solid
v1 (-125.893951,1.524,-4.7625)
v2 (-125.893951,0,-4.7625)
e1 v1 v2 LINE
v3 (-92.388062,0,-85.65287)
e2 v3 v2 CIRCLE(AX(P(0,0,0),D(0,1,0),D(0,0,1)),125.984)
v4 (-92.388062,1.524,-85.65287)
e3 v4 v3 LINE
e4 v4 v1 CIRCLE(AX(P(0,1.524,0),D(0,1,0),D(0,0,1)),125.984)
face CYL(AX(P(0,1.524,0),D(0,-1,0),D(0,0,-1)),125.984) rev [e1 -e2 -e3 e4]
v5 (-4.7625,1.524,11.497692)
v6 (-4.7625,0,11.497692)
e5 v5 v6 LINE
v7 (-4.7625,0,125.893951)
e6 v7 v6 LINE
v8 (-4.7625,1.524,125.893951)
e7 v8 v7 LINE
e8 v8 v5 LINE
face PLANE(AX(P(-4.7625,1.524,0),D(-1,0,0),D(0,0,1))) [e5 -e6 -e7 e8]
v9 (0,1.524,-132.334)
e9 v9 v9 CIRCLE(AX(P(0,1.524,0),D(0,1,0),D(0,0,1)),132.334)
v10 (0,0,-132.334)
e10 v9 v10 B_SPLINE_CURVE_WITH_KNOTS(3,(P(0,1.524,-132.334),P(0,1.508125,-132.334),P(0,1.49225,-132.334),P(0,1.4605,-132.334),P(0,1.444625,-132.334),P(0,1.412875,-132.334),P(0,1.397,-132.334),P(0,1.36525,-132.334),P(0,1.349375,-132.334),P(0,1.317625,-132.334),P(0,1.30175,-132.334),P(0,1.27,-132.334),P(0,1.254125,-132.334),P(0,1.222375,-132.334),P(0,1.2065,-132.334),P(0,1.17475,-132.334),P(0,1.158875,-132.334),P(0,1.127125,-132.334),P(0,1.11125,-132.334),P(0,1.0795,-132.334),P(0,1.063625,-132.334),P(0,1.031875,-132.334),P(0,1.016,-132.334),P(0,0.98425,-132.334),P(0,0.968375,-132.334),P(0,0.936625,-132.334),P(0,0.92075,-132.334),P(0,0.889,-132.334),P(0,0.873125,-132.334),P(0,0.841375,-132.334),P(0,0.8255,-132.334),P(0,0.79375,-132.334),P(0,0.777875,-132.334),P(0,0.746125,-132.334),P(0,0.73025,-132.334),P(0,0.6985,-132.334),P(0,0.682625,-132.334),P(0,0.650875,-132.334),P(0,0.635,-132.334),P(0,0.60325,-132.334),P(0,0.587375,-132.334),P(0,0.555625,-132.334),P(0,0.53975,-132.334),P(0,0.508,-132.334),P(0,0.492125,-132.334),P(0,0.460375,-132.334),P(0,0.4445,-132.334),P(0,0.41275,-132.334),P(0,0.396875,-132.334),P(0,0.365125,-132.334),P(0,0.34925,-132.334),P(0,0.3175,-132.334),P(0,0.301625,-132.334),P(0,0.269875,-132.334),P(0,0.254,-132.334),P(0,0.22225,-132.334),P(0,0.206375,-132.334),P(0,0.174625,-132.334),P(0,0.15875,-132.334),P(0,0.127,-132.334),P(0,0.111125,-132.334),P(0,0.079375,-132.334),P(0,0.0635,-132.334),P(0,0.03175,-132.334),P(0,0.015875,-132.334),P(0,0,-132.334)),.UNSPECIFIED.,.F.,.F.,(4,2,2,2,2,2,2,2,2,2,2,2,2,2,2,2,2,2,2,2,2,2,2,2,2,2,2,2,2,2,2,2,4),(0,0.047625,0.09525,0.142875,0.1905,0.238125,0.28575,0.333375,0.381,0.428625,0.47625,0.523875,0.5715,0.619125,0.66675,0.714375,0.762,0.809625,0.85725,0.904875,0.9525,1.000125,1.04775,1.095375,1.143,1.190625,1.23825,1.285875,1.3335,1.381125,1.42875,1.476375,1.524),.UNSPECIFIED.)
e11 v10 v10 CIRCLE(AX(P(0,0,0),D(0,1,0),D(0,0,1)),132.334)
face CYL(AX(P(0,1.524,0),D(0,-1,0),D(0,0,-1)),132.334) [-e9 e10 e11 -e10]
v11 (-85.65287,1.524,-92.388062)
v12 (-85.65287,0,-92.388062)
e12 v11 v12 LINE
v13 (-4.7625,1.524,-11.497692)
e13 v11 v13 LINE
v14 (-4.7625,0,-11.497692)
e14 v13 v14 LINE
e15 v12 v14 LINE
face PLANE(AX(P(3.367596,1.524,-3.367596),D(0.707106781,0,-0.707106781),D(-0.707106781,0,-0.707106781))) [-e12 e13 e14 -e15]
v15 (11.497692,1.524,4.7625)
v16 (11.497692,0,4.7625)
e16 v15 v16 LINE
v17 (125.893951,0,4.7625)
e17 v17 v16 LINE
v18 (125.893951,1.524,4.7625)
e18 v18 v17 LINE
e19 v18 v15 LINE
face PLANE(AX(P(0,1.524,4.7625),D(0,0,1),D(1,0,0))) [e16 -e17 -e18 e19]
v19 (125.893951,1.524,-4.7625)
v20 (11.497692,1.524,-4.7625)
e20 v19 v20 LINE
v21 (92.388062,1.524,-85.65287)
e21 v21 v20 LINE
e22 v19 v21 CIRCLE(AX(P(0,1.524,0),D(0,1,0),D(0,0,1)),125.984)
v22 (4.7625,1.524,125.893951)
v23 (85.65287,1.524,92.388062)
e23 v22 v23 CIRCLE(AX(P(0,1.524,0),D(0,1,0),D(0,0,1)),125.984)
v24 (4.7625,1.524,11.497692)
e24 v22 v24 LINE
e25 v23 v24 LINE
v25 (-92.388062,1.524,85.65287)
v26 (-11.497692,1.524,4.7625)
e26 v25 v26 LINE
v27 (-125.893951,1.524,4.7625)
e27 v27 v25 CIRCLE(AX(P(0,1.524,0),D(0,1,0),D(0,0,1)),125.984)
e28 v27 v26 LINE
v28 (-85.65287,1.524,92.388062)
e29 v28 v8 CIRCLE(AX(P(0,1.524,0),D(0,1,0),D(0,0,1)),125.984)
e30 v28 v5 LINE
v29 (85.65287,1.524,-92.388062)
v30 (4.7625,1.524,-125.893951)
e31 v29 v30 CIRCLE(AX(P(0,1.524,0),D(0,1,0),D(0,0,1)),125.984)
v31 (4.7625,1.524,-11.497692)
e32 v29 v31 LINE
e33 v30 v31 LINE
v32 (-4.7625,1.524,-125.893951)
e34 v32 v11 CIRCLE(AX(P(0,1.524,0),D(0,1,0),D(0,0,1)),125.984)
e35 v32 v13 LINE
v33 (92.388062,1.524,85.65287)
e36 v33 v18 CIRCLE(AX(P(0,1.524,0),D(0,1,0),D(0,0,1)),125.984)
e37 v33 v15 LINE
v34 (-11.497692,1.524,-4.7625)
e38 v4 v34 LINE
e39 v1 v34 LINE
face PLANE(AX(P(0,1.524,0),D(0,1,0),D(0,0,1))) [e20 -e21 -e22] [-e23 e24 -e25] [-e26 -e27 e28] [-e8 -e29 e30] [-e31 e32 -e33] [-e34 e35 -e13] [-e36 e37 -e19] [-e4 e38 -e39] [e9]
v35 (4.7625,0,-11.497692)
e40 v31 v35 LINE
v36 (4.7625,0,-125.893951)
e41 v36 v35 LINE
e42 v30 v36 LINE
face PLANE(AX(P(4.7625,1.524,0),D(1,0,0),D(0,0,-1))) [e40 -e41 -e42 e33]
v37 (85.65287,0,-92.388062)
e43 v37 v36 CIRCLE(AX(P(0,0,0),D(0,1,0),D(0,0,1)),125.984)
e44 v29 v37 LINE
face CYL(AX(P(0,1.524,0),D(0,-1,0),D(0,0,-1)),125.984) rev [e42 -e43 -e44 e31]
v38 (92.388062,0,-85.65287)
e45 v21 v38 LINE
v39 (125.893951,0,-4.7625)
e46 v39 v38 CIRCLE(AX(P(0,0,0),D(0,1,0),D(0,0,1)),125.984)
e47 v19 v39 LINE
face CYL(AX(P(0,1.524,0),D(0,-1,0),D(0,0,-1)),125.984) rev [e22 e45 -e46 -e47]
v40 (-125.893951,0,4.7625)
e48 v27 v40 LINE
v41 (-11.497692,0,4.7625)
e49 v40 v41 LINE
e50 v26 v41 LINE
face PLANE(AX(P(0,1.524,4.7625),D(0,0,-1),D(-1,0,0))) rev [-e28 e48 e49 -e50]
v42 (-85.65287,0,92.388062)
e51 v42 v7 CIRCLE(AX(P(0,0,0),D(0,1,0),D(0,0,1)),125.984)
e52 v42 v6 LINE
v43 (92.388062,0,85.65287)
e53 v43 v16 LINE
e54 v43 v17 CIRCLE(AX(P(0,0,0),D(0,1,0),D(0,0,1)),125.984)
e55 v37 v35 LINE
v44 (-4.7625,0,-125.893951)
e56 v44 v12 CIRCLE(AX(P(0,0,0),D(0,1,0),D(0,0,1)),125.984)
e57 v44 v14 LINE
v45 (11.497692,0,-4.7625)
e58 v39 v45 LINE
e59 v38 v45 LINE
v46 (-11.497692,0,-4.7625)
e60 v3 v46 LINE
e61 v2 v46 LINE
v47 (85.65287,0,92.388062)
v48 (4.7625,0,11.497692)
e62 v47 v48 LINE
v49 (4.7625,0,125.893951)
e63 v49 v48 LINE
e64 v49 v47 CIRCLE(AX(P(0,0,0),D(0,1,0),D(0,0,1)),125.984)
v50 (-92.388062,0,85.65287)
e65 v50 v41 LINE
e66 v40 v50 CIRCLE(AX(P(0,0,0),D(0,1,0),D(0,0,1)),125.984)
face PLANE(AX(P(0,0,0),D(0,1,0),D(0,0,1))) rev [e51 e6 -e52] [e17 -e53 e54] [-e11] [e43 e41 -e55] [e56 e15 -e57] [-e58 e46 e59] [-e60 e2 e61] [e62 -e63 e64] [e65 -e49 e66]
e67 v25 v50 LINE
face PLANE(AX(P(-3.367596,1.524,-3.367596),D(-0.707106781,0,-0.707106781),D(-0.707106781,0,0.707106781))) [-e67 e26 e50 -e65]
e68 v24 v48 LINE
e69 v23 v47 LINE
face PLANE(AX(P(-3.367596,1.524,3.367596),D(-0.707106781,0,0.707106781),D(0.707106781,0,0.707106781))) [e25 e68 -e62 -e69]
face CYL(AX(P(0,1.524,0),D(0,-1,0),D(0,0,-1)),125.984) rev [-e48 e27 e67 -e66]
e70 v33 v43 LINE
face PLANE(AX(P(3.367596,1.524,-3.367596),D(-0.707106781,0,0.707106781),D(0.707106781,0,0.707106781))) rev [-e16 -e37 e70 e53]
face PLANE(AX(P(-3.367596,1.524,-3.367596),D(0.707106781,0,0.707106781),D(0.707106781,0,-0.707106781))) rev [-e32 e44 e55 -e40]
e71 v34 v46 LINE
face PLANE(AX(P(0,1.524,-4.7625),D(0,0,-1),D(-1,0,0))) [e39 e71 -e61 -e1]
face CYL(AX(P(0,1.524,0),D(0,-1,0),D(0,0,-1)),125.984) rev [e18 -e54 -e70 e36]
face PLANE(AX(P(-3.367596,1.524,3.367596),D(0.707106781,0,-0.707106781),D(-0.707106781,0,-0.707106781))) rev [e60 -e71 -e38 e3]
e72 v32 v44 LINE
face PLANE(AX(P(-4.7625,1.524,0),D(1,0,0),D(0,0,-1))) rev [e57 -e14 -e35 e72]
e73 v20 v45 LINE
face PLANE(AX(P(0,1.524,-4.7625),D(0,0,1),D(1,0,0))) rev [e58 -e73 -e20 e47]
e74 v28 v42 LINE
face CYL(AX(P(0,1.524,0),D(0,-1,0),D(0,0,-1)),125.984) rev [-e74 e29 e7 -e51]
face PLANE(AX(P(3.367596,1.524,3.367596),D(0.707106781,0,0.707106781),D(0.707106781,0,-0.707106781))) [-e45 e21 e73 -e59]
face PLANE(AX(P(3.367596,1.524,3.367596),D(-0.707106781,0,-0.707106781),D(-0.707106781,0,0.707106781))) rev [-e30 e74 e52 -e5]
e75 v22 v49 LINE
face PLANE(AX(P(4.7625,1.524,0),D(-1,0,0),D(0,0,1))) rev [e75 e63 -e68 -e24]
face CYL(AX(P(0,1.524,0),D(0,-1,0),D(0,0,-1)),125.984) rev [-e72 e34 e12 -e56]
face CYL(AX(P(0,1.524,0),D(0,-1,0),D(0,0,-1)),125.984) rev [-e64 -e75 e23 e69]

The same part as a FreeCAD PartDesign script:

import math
import FreeCAD as App
import Part
import Sketcher
Q = App.Units.Quantity

doc = App.newDocument("Part")
params = doc.addObject("Spreadsheet::Sheet", "Params")
for row, (alias, value) in enumerate([
    ("sketch1_diameter", "10.42 in"),
    ("sketch1_radius", "4.96 in"),
    ("pad1_length", "0.06 in"),
], start=1):
    params.set(f"A{row}", alias)
    params.set(f"B{row}", "=" + value)
    params.setAlias(f"B{row}", alias)

body = doc.addObject("PartDesign::Body", "Body")

sketch1 = body.newObject("Sketcher::SketchObject", "Sketch")
sketch1.AttachmentSupport = (doc.getObject("XZ_Plane"), [""])
sketch1.MapMode = "FlatFace"
sketch1.addGeometry([
    Part.Circle(App.Vector(0, 0, 0), App.Vector(0, 0, 1), 132.334),
    Part.ArcOfCircle(Part.Circle(App.Vector(0, 0, 0), App.Vector(0, 0, 1), 125.984), math.radians(2.166435), math.radians(42.833565)),
    Part.LineSegment(App.Vector(92.388062, 85.65287, 0), App.Vector(11.497692, 4.7625, 0)),
    Part.LineSegment(App.Vector(11.497692, 4.7625, 0), App.Vector(125.893951, 4.7625, 0)),
    Part.ArcOfCircle(Part.Circle(App.Vector(0, 0, 0), App.Vector(0, 0, 1), 125.984), math.radians(47.166435), math.radians(87.833565)),
    Part.LineSegment(App.Vector(4.7625, 125.893951, 0), App.Vector(4.7625, 11.497692, 0)),
    Part.LineSegment(App.Vector(4.7625, 11.497692, 0), App.Vector(85.65287, 92.388062, 0)),
    Part.ArcOfCircle(Part.Circle(App.Vector(0, 0, 0), App.Vector(0, 0, 1), 125.984), math.radians(-42.833565), math.radians(-2.166435)),
    Part.LineSegment(App.Vector(125.893951, -4.7625, 0), App.Vector(11.497692, -4.7625, 0)),
    Part.LineSegment(App.Vector(11.497692, -4.7625, 0), App.Vector(92.388062, -85.65287, 0)),
    Part.ArcOfCircle(Part.Circle(App.Vector(0, 0, 0), App.Vector(0, 0, 1), 125.984), math.radians(-87.833565), math.radians(-47.166435)),
    Part.LineSegment(App.Vector(85.65287, -92.388062, 0), App.Vector(4.7625, -11.497692, 0)),
    Part.LineSegment(App.Vector(4.7625, -11.497692, 0), App.Vector(4.7625, -125.893951, 0)),
    Part.ArcOfCircle(Part.Circle(App.Vector(0, 0, 0), App.Vector(0, 0, 1), 125.984), math.radians(92.166435), math.radians(132.833565)),
    Part.LineSegment(App.Vector(-85.65287, 92.388062, 0), App.Vector(-4.7625, 11.497692, 0)),
    Part.LineSegment(App.Vector(-4.7625, 11.497692, 0), App.Vector(-4.7625, 125.893951, 0)),
    Part.ArcOfCircle(Part.Circle(App.Vector(0, 0, 0), App.Vector(0, 0, 1), 125.984), math.radians(137.166435), math.radians(177.833565)),
    Part.LineSegment(App.Vector(-125.893951, 4.7625, 0), App.Vector(-11.497692, 4.7625, 0)),
    Part.LineSegment(App.Vector(-11.497692, 4.7625, 0), App.Vector(-92.388062, 85.65287, 0)),
    Part.ArcOfCircle(Part.Circle(App.Vector(0, 0, 0), App.Vector(0, 0, 1), 125.984), math.radians(-132.833565), math.radians(-92.166435)),
    Part.LineSegment(App.Vector(-4.7625, -125.893951, 0), App.Vector(-4.7625, -11.497692, 0)),
    Part.LineSegment(App.Vector(-4.7625, -11.497692, 0), App.Vector(-85.65287, -92.388062, 0)),
    Part.ArcOfCircle(Part.Circle(App.Vector(0, 0, 0), App.Vector(0, 0, 1), 125.984), math.radians(-177.833565), math.radians(-137.166435)),
    Part.LineSegment(App.Vector(-92.388062, -85.65287, 0), App.Vector(-11.497692, -4.7625, 0)),
    Part.LineSegment(App.Vector(-11.497692, -4.7625, 0), App.Vector(-125.893951, -4.7625, 0)),
], False)
sketch1.addConstraint([
    Sketcher.Constraint("Coincident", 1, 2, 2, 1),
    Sketcher.Constraint("Coincident", 2, 2, 3, 1),
    Sketcher.Constraint("Coincident", 3, 2, 1, 1),
    Sketcher.Constraint("Coincident", 4, 2, 5, 1),
    Sketcher.Constraint("Coincident", 5, 2, 6, 1),
    Sketcher.Constraint("Coincident", 6, 2, 4, 1),
    Sketcher.Constraint("Coincident", 7, 2, 8, 1),
    Sketcher.Constraint("Coincident", 8, 2, 9, 1),
    Sketcher.Constraint("Coincident", 9, 2, 7, 1),
    Sketcher.Constraint("Coincident", 10, 2, 11, 1),
    Sketcher.Constraint("Coincident", 11, 2, 12, 1),
    Sketcher.Constraint("Coincident", 12, 2, 10, 1),
    Sketcher.Constraint("Coincident", 13, 2, 14, 1),
    Sketcher.Constraint("Coincident", 14, 2, 15, 1),
    Sketcher.Constraint("Coincident", 15, 2, 13, 1),
    Sketcher.Constraint("Coincident", 16, 2, 17, 1),
    Sketcher.Constraint("Coincident", 17, 2, 18, 1),
    Sketcher.Constraint("Coincident", 18, 2, 16, 1),
    Sketcher.Constraint("Coincident", 19, 2, 20, 1),
    Sketcher.Constraint("Coincident", 20, 2, 21, 1),
    Sketcher.Constraint("Coincident", 21, 2, 19, 1),
    Sketcher.Constraint("Coincident", 22, 2, 23, 1),
    Sketcher.Constraint("Coincident", 23, 2, 24, 1),
    Sketcher.Constraint("Coincident", 24, 2, 22, 1),
    Sketcher.Constraint("Horizontal", 3),
    Sketcher.Constraint("Vertical", 5),
    Sketcher.Constraint("Horizontal", 8),
    Sketcher.Constraint("Vertical", 12),
    Sketcher.Constraint("Vertical", 15),
    Sketcher.Constraint("Horizontal", 17),
    Sketcher.Constraint("Vertical", 20),
    Sketcher.Constraint("Horizontal", 24),
    Sketcher.Constraint("Coincident", 0, 3, -1, 1),
    Sketcher.Constraint("Coincident", 1, 3, -1, 1),
    Sketcher.Constraint("Coincident", 4, 3, -1, 1),
    Sketcher.Constraint("Coincident", 7, 3, -1, 1),
    Sketcher.Constraint("Coincident", 10, 3, -1, 1),
    Sketcher.Constraint("Coincident", 13, 3, -1, 1),
    Sketcher.Constraint("Coincident", 16, 3, -1, 1),
    Sketcher.Constraint("Coincident", 19, 3, -1, 1),
    Sketcher.Constraint("Coincident", 22, 3, -1, 1),
    Sketcher.Constraint("Equal", 1, 4),
    Sketcher.Constraint("Equal", 4, 7),
    Sketcher.Constraint("Equal", 7, 10),
    Sketcher.Constraint("Equal", 10, 13),
    Sketcher.Constraint("Equal", 13, 16),
    Sketcher.Constraint("Equal", 16, 19),
    Sketcher.Constraint("Equal", 19, 22),
    Sketcher.Constraint("Symmetric", 11, 2, 14, 2, -1, 1),
    Sketcher.Constraint("Symmetric", 8, 2, 17, 2, -1, 1),
    Sketcher.Constraint("Symmetric", 5, 2, 20, 2, -1, 1),
    Sketcher.Constraint("Symmetric", 2, 2, 23, 2, -1, 1),
    Sketcher.Constraint("Symmetric", 5, 2, 14, 2, -2),
    Sketcher.Constraint("Symmetric", 2, 2, 17, 2, -2),
    Sketcher.Constraint("Parallel", 2, 6),
    Sketcher.Constraint("Perpendicular", 6, 9),
    Sketcher.Constraint("Parallel", 9, 11),
    Sketcher.Constraint("Parallel", 11, 14),
    Sketcher.Constraint("Parallel", 14, 18),
    Sketcher.Constraint("Perpendicular", 18, 21),
    Sketcher.Constraint("Parallel", 21, 23),
    Sketcher.Constraint("Horizontal", 6, 2, 13, 2),
    Sketcher.Constraint("Equal", 24, 5),
    Sketcher.Constraint("Equal", 2, 6),
    Sketcher.Constraint("Diameter", 0, Q("10.42 in")),
    Sketcher.Constraint("Radius", 1, Q("4.96 in")),
    Sketcher.Constraint("DistanceY", -1, 1, 2, 2, Q("0.1875 in")),
    Sketcher.Constraint("DistanceX", 3, 1, 3, 2, 114.396259),
])
sketch1.setExpression("Constraints[64]", "Params.sketch1_diameter")
sketch1.setExpression("Constraints[65]", "Params.sketch1_radius")
pad1 = body.newObject("PartDesign::Pad", "Pad")
pad1.Profile = sketch1
pad1.setExpression("Length", "Params.pad1_length")
pad1.Reversed = True

doc.recompute()
